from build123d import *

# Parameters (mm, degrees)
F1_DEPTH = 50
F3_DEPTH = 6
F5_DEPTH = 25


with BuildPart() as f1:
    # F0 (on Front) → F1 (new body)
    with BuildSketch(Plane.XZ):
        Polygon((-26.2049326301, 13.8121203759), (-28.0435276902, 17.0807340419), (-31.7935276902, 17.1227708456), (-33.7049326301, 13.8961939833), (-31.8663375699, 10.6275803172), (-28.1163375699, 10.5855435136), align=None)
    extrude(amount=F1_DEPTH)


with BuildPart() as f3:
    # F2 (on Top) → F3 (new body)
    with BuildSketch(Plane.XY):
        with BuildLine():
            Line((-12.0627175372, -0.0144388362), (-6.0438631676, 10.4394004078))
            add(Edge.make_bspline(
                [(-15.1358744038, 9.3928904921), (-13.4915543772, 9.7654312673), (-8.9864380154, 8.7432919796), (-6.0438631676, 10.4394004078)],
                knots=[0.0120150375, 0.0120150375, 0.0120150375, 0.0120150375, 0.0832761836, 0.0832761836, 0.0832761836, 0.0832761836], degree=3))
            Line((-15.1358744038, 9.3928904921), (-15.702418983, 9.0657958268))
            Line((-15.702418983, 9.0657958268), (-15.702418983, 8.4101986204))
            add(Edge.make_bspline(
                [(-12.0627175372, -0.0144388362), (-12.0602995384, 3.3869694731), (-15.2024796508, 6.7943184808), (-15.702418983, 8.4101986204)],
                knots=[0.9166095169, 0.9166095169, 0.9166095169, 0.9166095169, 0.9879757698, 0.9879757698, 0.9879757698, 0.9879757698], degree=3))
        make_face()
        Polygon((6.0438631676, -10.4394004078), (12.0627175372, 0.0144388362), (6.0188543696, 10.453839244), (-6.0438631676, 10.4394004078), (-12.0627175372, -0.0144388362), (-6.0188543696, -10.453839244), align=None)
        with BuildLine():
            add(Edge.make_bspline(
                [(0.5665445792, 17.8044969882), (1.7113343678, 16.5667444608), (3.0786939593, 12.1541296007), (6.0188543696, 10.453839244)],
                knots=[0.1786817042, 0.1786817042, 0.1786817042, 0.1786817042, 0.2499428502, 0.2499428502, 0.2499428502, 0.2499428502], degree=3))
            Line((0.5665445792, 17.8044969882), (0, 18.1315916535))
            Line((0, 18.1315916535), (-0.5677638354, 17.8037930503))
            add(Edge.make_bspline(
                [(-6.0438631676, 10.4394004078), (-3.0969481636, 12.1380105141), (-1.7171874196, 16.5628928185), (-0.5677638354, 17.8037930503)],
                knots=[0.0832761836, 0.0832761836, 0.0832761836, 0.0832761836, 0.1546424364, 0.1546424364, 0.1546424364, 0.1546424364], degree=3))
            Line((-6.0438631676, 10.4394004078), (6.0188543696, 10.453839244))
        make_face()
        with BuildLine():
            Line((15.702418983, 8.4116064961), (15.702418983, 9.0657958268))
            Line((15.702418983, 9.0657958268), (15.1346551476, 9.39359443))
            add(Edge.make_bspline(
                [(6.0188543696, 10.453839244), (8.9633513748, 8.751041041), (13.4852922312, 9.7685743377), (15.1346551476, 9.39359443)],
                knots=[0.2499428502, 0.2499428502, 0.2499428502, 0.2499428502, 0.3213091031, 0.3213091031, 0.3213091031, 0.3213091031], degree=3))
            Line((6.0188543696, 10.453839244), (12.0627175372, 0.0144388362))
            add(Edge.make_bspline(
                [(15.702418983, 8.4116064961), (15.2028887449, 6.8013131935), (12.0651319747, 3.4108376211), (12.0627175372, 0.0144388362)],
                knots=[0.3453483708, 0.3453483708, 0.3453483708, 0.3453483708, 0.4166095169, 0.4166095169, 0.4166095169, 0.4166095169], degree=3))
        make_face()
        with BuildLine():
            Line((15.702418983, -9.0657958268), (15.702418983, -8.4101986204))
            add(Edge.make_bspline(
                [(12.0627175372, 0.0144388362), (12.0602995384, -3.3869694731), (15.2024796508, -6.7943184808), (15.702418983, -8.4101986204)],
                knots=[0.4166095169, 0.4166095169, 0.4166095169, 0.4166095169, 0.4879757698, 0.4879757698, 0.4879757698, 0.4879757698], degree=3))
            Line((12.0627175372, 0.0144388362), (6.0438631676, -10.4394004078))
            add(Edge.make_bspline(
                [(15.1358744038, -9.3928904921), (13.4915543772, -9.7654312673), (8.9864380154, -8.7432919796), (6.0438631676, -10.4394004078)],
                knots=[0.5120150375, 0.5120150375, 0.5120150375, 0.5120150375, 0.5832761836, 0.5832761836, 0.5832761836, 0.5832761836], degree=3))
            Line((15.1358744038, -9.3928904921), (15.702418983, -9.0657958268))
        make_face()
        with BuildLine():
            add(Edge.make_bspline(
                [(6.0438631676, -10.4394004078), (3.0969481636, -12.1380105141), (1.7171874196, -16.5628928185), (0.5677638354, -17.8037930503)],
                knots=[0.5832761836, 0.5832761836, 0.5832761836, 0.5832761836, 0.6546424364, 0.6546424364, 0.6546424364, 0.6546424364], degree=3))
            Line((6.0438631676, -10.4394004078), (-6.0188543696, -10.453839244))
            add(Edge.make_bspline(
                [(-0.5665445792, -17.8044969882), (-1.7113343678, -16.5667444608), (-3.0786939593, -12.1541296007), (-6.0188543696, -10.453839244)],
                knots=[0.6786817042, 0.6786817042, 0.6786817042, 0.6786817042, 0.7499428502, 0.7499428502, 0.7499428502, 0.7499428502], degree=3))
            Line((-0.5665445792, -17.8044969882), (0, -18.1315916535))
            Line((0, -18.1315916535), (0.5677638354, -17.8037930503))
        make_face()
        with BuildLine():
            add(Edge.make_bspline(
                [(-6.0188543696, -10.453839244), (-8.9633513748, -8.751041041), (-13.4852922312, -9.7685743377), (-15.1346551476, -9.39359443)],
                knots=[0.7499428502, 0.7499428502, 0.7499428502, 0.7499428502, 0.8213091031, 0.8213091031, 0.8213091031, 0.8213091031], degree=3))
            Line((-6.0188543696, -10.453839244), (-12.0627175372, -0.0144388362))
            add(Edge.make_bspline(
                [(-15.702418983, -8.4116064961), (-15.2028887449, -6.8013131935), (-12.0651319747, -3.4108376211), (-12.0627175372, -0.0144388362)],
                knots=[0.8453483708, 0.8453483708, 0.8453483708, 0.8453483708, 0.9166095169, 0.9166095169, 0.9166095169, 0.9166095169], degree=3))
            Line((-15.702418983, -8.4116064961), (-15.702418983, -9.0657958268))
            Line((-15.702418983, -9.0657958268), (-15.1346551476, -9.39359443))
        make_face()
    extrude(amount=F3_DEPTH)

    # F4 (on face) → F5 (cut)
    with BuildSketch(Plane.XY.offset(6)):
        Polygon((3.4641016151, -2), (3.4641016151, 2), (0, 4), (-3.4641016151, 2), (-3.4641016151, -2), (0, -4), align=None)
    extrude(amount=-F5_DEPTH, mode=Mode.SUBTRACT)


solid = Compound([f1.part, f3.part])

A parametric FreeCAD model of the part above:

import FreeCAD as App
import Part
import Sketcher
Q = App.Units.Quantity

doc = App.newDocument("Part")
body = doc.addObject("PartDesign::Body", "Body")

# Sketch on XZ plane
sketch1 = body.newObject("Sketcher::SketchObject", "Sketch")
sketch1.AttachmentSupport = (doc.getObject("XZ_Plane"), [""])
sketch1.MapMode = "FlatFace"
sketch1.addGeometry([
    Part.LineSegment(App.Vector(-26.204933, 13.81212, 0), App.Vector(-28.043528, 17.080734, 0)),  # 0
    Part.LineSegment(App.Vector(-28.043528, 17.080734, 0), App.Vector(-31.793528, 17.122771, 0)),  # 1
    Part.LineSegment(App.Vector(-31.793528, 17.122771, 0), App.Vector(-33.704933, 13.896194, 0)),  # 2
    Part.LineSegment(App.Vector(-33.704933, 13.896194, 0), App.Vector(-31.866338, 10.62758, 0)),  # 3
    Part.LineSegment(App.Vector(-31.866338, 10.62758, 0), App.Vector(-28.116338, 10.585544, 0)),  # 4
    Part.LineSegment(App.Vector(-28.116338, 10.585544, 0), App.Vector(-26.204933, 13.81212, 0)),  # 5
], False)
sketch1.addConstraint([
    Sketcher.Constraint("Coincident", 0, 2, 1, 1),
    Sketcher.Constraint("Coincident", 1, 2, 2, 1),
    Sketcher.Constraint("Coincident", 2, 2, 3, 1),
    Sketcher.Constraint("Coincident", 3, 2, 4, 1),
    Sketcher.Constraint("Coincident", 4, 2, 5, 1),
    Sketcher.Constraint("Coincident", 5, 2, 0, 1),
    Sketcher.Constraint("Parallel", 0, 3),
    Sketcher.Constraint("Parallel", 1, 4),
    Sketcher.Constraint("Parallel", 2, 5),
    Sketcher.Constraint("Equal", 0, 1),
    Sketcher.Constraint("Equal", 1, 2),
    Sketcher.Constraint("Equal", 2, 3),
    Sketcher.Constraint("DistanceX", 2, 2, 5, 2, 7.5),
    Sketcher.Constraint("DistanceX", 1, 2, 0, 2, 3.75),
    Sketcher.Constraint("DistanceY", -1, 1, 1, 2, 17.122771),
    Sketcher.Constraint("DistanceY", -1, 1, 3, 2, 10.62758),
    Sketcher.Constraint("DistanceY", -1, 1, 5, 2, 13.81212),
    Sketcher.Constraint("DistanceX", 0, 2, -1, 1, 28.043528),
])
pad1 = body.newObject("PartDesign::Pad", "Pad")
pad1.Profile = sketch1
pad1.Length = 50
body2 = doc.addObject("PartDesign::Body", "Body001")

# Sketch on XY plane
sketch2 = body2.newObject("Sketcher::SketchObject", "Sketch001")
sketch2.AttachmentSupport = (doc.getObject("XY_Plane001"), [""])
sketch2.MapMode = "FlatFace"
sketch2.addGeometry([
    Part.BSplineCurve([App.Vector(-15.135874, 9.39289, 0), App.Vector(-13.491554, 9.765431, 0), App.Vector(-8.986438, 8.743292, 0), App.Vector(-6.043863, 10.4394, 0)], [4, 4], [0.012015038, 0.083276184], False, 3, [1, 1, 1, 1], False),  # 0
    Part.LineSegment(App.Vector(-15.135874, 9.39289, 0), App.Vector(-15.702419, 9.065796, 0)),  # 1
    Part.LineSegment(App.Vector(-15.702419, 9.065796, 0), App.Vector(-15.702419, 8.410199, 0)),  # 2
    Part.BSplineCurve([App.Vector(-12.062718, -0.014439, 0), App.Vector(-12.0603, 3.386969, 0), App.Vector(-15.20248, 6.794318, 0), App.Vector(-15.702419, 8.410199, 0)], [4, 4], [0.916609517, 0.98797577], False, 3, [1, 1, 1, 1], False),  # 3
    Part.BSplineCurve([App.Vector(-15.702419, -8.411606, 0), App.Vector(-15.202889, -6.801313, 0), App.Vector(-12.065132, -3.410838, 0), App.Vector(-12.062718, -0.014439, 0)], [4, 4], [0.845348371, 0.916609517], False, 3, [1, 1, 1, 1], False),  # 4
    Part.LineSegment(App.Vector(-15.702419, -8.411606, 0), App.Vector(-15.702419, -9.065796, 0)),  # 5
    Part.LineSegment(App.Vector(-15.702419, -9.065796, 0), App.Vector(-15.134655, -9.393594, 0)),  # 6
    Part.BSplineCurve([App.Vector(-6.018854, -10.453839, 0), App.Vector(-8.963351, -8.751041, 0), App.Vector(-13.485292, -9.768574, 0), App.Vector(-15.134655, -9.393594, 0)], [4, 4], [0.74994285, 0.821309103], False, 3, [1, 1, 1, 1], False),  # 7
    Part.BSplineCurve([App.Vector(-0.566545, -17.804497, 0), App.Vector(-1.711334, -16.566744, 0), App.Vector(-3.078694, -12.15413, 0), App.Vector(-6.018854, -10.453839, 0)], [4, 4], [0.678681704, 0.74994285], False, 3, [1, 1, 1, 1], False),  # 8
    Part.LineSegment(App.Vector(-0.566545, -17.804497, 0), App.Vector(0, -18.131592, 0)),  # 9
    Part.LineSegment(App.Vector(0, -18.131592, 0), App.Vector(0.567764, -17.803793, 0)),  # 10
    Part.BSplineCurve([App.Vector(6.043863, -10.4394, 0), App.Vector(3.096948, -12.138011, 0), App.Vector(1.717187, -16.562893, 0), App.Vector(0.567764, -17.803793, 0)], [4, 4], [0.583276184, 0.654642436], False, 3, [1, 1, 1, 1], False),  # 11
    Part.BSplineCurve([App.Vector(15.135874, -9.39289, 0), App.Vector(13.491554, -9.765431, 0), App.Vector(8.986438, -8.743292, 0), App.Vector(6.043863, -10.4394, 0)], [4, 4], [0.512015037, 0.583276184], False, 3, [1, 1, 1, 1], False),  # 12
    Part.LineSegment(App.Vector(15.135874, -9.39289, 0), App.Vector(15.702419, -9.065796, 0)),  # 13
    Part.LineSegment(App.Vector(15.702419, -9.065796, 0), App.Vector(15.702419, -8.410199, 0)),  # 14
    Part.BSplineCurve([App.Vector(12.062718, 0.014439, 0), App.Vector(12.0603, -3.386969, 0), App.Vector(15.20248, -6.794318, 0), App.Vector(15.702419, -8.410199, 0)], [4, 4], [0.416609517, 0.48797577], False, 3, [1, 1, 1, 1], False),  # 15
    Part.BSplineCurve([App.Vector(15.702419, 8.411606, 0), App.Vector(15.202889, 6.801313, 0), App.Vector(12.065132, 3.410838, 0), App.Vector(12.062718, 0.014439, 0)], [4, 4], [0.345348371, 0.416609517], False, 3, [1, 1, 1, 1], False),  # 16
    Part.LineSegment(App.Vector(15.702419, 8.411606, 0), App.Vector(15.702419, 9.065796, 0)),  # 17
    Part.LineSegment(App.Vector(15.702419, 9.065796, 0), App.Vector(15.134655, 9.393594, 0)),  # 18
    Part.BSplineCurve([App.Vector(6.018854, 10.453839, 0), App.Vector(8.963351, 8.751041, 0), App.Vector(13.485292, 9.768574, 0), App.Vector(15.134655, 9.393594, 0)], [4, 4], [0.24994285, 0.321309103], False, 3, [1, 1, 1, 1], False),  # 19
    Part.BSplineCurve([App.Vector(0.566545, 17.804497, 0), App.Vector(1.711334, 16.566744, 0), App.Vector(3.078694, 12.15413, 0), App.Vector(6.018854, 10.453839, 0)], [4, 4], [0.178681704, 0.24994285], False, 3, [1, 1, 1, 1], False),  # 20
    Part.LineSegment(App.Vector(0.566545, 17.804497, 0), App.Vector(0, 18.131592, 0)),  # 21
    Part.LineSegment(App.Vector(0, 18.131592, 0), App.Vector(-0.567764, 17.803793, 0)),  # 22
    Part.BSplineCurve([App.Vector(-6.043863, 10.4394, 0), App.Vector(-3.096948, 12.138011, 0), App.Vector(-1.717187, 16.562893, 0), App.Vector(-0.567764, 17.803793, 0)], [4, 4], [0.083276184, 0.154642436], False, 3, [1, 1, 1, 1], False),  # 23
], False)
sketch2.addConstraint([
    Sketcher.Constraint("Block", 0),
    Sketcher.Constraint("Block", 3),
    Sketcher.Constraint("Block", 4),
    Sketcher.Constraint("Block", 7),
    Sketcher.Constraint("Block", 8),
    Sketcher.Constraint("Block", 11),
    Sketcher.Constraint("Block", 12),
    Sketcher.Constraint("Block", 15),
    Sketcher.Constraint("Block", 16),
    Sketcher.Constraint("Block", 19),
    Sketcher.Constraint("Block", 20),
    Sketcher.Constraint("Block", 23),
    Sketcher.Constraint("Coincident", 0, 1, 1, 1),
    Sketcher.Constraint("Coincident", 1, 2, 2, 1),
    Sketcher.Constraint("Coincident", 2, 2, 3, 2),
    Sketcher.Constraint("Coincident", 4, 1, 5, 1),
    Sketcher.Constraint("Coincident", 5, 2, 6, 1),
    Sketcher.Constraint("Coincident", 6, 2, 7, 2),
    Sketcher.Constraint("Coincident", 8, 1, 9, 1),
    Sketcher.Constraint("Coincident", 9, 2, 10, 1),
    Sketcher.Constraint("Coincident", 10, 2, 11, 2),
    Sketcher.Constraint("Coincident", 12, 1, 13, 1),
    Sketcher.Constraint("Coincident", 13, 2, 14, 1),
    Sketcher.Constraint("Coincident", 14, 2, 15, 2),
    Sketcher.Constraint("Coincident", 16, 1, 17, 1),
    Sketcher.Constraint("Coincident", 17, 2, 18, 1),
    Sketcher.Constraint("Coincident", 18, 2, 19, 2),
    Sketcher.Constraint("Coincident", 20, 1, 21, 1),
    Sketcher.Constraint("Coincident", 21, 2, 22, 1),
    Sketcher.Constraint("Coincident", 22, 2, 23, 2),
    Sketcher.Constraint("Vertical", 2),
    Sketcher.Constraint("Vertical", 5),
    Sketcher.Constraint("Vertical", 14),
    Sketcher.Constraint("Vertical", 17),
    Sketcher.Constraint("PointOnObject", 9, 2, -2),
    Sketcher.Constraint("PointOnObject", 21, 2, -2),
    Sketcher.Constraint("DistanceY", 5, 2, 5, 1, 0.654189),
    Sketcher.Constraint("DistanceY", 17, 1, 17, 2, 0.654189),
    Sketcher.Constraint("DistanceY", 9, 2, 10, 2, 0.327799),
    Sketcher.Constraint("DistanceY", 6, 2, 13, 2, 0.327799),
    Sketcher.Constraint("DistanceY", 1, 2, 18, 2, 0.327799),
    Sketcher.Constraint("DistanceY", 22, 2, 21, 2, 0.327799),
])
pad2 = body2.newObject("PartDesign::Pad", "Pad001")
pad2.Profile = sketch2
pad2.Length = 6

# Sketch on XY plane
sketch3 = body2.newObject("Sketcher::SketchObject", "Sketch002")
sketch3.AttachmentSupport = (doc.getObject("XY_Plane001"), [""])
sketch3.MapMode = "FlatFace"
sketch3.AttachmentOffset = App.Placement(App.Vector(0, 0, 6), App.Rotation())
sketch3.addGeometry([
    Part.LineSegment(App.Vector(3.464102, -2, 0), App.Vector(3.464102, 2, 0)),  # 0
    Part.LineSegment(App.Vector(3.464102, 2, 0), App.Vector(0, 4, 0)),  # 1
    Part.LineSegment(App.Vector(0, 4, 0), App.Vector(-3.464102, 2, 0)),  # 2
    Part.LineSegment(App.Vector(-3.464102, 2, 0), App.Vector(-3.464102, -2, 0)),  # 3
    Part.LineSegment(App.Vector(-3.464102, -2, 0), App.Vector(0, -4, 0)),  # 4
    Part.LineSegment(App.Vector(0, -4, 0), App.Vector(3.464102, -2, 0)),  # 5
], False)
sketch3.addConstraint([
    Sketcher.Constraint("Coincident", 0, 2, 1, 1),
    Sketcher.Constraint("Coincident", 1, 2, 2, 1),
    Sketcher.Constraint("Coincident", 2, 2, 3, 1),
    Sketcher.Constraint("Coincident", 3, 2, 4, 1),
    Sketcher.Constraint("Coincident", 4, 2, 5, 1),
    Sketcher.Constraint("Coincident", 5, 2, 0, 1),
    Sketcher.Constraint("Vertical", 0),
    Sketcher.Constraint("Vertical", 3),
    Sketcher.Constraint("Symmetric", 0, 2, 3, 2, -1, 1),
    Sketcher.Constraint("Symmetric", 1, 2, 4, 2, -1, 1),
    Sketcher.Constraint("PointOnObject", 1, 2, -2),
    Sketcher.Constraint("Parallel", 2, 5),
    Sketcher.Constraint("Horizontal", 0, 2, 2, 2),
    Sketcher.Constraint("DistanceY", 0, 1, 0, 2, 4.0),
    Sketcher.Constraint("Angle", 1, Q("150 deg")),
    Sketcher.Constraint("Distance", 1, 4.0),
])
pocket1 = body2.newObject("PartDesign::Pocket", "Pocket")
pocket1.Profile = sketch3
pocket1.Length = 25

doc.recompute()
